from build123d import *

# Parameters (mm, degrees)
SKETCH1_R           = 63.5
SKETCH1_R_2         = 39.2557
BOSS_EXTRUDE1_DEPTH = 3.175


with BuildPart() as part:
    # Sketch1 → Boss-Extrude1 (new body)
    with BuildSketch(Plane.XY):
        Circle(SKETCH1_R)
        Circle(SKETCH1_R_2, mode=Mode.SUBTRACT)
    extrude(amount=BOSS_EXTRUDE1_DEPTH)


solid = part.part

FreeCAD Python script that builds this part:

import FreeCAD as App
import Part
import Sketcher

V = App.Vector
Q = App.Units.Quantity

doc = App.newDocument("Part")
params = doc.addObject("Spreadsheet::Sheet", "Params")
for row, (alias, value) in enumerate([
    ("sketch1_diameter", "5 in"),
    ("sketch1_diameter2", "3.091 in"),
    ("pad1_length", "0.125 in"),
], start=1):
    params.set(f"A{row}", alias)
    params.set(f"B{row}", "=" + value)
    params.setAlias(f"B{row}", alias)

body = doc.addObject("PartDesign::Body", "Body")

# Sketch on XY plane
sketch1 = body.newObject("Sketcher::SketchObject", "Sketch")
sketch1.AttachmentSupport = (doc.getObject("XY_Plane"), [""])
sketch1.MapMode = "FlatFace"
sketch1.addGeometry([
    Part.Circle(V(0, 0, 0), V(0, 0, 1), 64),
    Part.Circle(V(0, 0, 0), V(0, 0, 1), 39),
], False)
sketch1.addConstraint([
    Sketcher.Constraint("Coincident", 0, 3, -1, 1),
    Sketcher.Constraint("Coincident", 1, 3, -1, 1),
    Sketcher.Constraint("Diameter", 0, Q("5 in")),
    Sketcher.Constraint("Diameter", 1, Q("3.091 in")),
])
sketch1.setExpression("Constraints[2]", "Params.sketch1_diameter")
sketch1.setExpression("Constraints[3]", "Params.sketch1_diameter2")
pad1 = body.newObject("PartDesign::Pad", "Pad")
pad1.Profile = sketch1
pad1.setExpression("Length", "Params.pad1_length")

doc.recompute()
